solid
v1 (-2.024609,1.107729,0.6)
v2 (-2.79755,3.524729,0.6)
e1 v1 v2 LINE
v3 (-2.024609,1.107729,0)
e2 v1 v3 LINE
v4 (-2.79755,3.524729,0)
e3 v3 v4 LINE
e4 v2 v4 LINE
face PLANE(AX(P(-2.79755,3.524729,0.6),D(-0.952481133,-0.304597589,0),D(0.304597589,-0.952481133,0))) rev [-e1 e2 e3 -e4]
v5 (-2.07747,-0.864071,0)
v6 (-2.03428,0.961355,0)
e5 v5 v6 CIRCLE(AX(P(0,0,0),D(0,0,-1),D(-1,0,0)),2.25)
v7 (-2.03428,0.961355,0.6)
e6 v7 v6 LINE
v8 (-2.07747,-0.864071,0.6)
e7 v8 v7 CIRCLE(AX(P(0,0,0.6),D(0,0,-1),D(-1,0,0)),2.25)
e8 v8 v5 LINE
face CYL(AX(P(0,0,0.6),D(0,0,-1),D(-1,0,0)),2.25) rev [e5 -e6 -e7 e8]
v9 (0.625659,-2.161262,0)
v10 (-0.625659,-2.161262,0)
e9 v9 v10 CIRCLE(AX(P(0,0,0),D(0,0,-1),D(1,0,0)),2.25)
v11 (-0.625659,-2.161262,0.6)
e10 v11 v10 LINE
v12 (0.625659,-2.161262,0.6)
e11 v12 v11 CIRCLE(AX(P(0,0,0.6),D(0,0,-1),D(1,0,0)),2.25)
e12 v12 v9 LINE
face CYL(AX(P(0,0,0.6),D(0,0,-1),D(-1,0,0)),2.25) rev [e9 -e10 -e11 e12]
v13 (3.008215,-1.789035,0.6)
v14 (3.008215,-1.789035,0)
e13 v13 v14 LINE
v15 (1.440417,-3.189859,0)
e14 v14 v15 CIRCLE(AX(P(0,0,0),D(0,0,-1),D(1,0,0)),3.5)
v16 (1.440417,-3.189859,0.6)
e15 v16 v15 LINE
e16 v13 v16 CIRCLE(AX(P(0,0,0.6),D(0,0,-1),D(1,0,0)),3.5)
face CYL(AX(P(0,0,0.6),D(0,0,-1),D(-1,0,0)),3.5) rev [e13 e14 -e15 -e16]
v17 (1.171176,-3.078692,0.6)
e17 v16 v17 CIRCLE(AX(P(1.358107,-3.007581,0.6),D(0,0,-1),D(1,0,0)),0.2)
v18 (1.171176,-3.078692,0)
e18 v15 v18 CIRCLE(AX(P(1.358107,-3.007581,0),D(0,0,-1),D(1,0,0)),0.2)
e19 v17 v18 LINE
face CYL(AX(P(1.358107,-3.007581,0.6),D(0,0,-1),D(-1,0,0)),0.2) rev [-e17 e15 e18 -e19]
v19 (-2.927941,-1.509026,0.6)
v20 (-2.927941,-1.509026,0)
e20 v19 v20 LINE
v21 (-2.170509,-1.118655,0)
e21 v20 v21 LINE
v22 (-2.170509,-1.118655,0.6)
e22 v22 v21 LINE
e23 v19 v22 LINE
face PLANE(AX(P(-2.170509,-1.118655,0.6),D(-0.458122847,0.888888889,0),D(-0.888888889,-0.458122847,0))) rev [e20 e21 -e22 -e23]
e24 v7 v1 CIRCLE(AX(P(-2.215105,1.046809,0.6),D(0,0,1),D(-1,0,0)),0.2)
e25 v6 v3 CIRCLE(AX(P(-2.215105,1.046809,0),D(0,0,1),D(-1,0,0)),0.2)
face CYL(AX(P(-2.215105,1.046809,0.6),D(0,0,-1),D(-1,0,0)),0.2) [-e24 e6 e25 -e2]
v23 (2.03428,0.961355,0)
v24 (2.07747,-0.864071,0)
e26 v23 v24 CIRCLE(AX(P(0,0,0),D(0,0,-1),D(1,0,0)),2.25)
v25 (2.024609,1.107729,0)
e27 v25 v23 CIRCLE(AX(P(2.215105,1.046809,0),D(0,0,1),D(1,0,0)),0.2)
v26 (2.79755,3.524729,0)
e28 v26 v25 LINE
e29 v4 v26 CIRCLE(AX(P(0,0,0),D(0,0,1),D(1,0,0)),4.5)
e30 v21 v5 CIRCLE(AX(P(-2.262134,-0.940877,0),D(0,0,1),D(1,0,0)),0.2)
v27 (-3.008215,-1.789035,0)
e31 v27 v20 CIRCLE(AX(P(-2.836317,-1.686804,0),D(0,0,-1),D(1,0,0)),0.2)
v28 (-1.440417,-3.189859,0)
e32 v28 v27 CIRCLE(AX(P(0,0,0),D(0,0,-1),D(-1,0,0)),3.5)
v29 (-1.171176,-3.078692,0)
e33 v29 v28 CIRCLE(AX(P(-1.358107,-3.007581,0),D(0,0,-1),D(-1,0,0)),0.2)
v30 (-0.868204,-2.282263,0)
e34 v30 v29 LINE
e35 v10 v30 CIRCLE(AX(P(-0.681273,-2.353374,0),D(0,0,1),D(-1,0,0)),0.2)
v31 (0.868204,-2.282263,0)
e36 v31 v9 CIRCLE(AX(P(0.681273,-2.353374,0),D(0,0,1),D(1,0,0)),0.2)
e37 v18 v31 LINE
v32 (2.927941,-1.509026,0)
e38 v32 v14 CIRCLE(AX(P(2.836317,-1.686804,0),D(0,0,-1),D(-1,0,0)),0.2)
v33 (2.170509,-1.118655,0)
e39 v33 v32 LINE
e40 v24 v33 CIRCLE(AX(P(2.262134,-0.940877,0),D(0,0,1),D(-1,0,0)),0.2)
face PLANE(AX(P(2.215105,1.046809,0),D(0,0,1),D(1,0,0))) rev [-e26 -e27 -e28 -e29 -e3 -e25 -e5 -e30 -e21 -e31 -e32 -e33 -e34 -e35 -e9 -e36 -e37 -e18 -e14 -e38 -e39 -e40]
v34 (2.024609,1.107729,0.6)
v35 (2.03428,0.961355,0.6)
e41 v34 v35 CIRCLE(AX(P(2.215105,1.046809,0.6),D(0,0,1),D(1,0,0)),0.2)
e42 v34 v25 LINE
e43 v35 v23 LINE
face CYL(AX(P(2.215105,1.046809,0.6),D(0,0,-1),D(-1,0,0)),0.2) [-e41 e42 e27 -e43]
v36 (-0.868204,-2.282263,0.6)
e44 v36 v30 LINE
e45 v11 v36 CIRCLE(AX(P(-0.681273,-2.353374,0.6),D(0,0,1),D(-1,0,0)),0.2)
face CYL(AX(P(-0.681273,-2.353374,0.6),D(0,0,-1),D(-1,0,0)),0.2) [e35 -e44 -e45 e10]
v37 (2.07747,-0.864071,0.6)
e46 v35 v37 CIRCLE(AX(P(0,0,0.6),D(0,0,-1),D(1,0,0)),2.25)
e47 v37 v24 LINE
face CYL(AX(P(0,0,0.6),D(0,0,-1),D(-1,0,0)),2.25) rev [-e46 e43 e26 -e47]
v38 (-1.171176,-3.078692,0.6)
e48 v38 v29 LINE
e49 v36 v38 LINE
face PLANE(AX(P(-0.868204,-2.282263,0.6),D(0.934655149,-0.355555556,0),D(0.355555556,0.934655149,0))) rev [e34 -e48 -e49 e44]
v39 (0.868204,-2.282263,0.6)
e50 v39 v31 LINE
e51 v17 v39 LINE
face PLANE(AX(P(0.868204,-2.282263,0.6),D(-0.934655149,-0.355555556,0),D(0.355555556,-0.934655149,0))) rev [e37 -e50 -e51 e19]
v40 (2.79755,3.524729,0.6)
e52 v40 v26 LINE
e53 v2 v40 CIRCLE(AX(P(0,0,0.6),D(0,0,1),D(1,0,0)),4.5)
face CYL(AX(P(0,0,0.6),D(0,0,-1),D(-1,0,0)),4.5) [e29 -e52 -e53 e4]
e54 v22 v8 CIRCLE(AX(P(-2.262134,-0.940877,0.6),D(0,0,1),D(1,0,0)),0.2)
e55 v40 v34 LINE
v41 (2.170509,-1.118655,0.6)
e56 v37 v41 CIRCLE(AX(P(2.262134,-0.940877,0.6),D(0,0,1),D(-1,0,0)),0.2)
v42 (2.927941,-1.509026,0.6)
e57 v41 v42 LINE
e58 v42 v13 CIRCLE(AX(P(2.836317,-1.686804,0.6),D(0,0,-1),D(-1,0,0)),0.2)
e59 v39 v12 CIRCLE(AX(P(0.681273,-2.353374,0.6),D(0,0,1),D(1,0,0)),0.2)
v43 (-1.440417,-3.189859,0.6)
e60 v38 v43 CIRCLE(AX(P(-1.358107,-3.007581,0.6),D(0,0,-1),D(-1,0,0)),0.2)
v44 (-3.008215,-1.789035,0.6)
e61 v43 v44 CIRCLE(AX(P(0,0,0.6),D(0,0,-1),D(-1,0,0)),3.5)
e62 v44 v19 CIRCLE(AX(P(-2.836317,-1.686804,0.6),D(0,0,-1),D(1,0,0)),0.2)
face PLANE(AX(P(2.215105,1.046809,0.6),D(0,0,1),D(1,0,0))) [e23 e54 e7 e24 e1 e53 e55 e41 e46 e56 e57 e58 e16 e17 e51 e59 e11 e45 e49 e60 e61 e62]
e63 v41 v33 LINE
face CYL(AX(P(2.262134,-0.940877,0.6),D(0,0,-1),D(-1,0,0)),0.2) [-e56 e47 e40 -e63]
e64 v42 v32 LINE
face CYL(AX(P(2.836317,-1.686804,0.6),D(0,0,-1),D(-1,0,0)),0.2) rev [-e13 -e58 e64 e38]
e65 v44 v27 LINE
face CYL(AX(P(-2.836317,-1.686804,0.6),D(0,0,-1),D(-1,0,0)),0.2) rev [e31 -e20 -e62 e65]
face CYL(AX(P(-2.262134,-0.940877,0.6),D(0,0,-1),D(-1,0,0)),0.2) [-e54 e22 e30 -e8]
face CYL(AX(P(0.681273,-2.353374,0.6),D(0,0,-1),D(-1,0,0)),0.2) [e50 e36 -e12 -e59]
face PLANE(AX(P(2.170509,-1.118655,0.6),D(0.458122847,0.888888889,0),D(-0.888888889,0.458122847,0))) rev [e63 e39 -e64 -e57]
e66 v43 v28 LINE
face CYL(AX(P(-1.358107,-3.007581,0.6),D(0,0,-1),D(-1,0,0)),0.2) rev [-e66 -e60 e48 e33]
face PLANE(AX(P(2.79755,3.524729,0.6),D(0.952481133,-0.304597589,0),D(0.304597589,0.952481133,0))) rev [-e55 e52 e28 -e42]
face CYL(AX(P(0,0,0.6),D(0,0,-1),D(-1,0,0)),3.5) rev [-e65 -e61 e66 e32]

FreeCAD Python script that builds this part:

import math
import FreeCAD as App
import Part
import Sketcher

V = App.Vector
Q = App.Units.Quantity

doc = App.newDocument("Part")
params = doc.addObject("Spreadsheet::Sheet", "Params")
for row, (alias, value) in enumerate([
    ("sketch1_radius", "0.2 mm"),
    ("sketch1_radius2", "3.5 mm"),
    ("sketch1_radius3", "4.5 mm"),
    ("sketch1_radius4", "2.25 mm"),
    ("pad1_length", "0.6 mm"),
], start=1):
    params.set(f"A{row}", alias)
    params.set(f"B{row}", "=" + value)
    params.setAlias(f"B{row}", alias)

body = doc.addObject("PartDesign::Body", "Body")

# Sketch on XY plane
sketch1 = body.newObject("Sketcher::SketchObject", "Sketch")
sketch1.AttachmentSupport = (doc.getObject("XY_Plane"), [""])
sketch1.MapMode = "FlatFace"
sketch1.addGeometry(Part.LineSegment(V(2.79755, 3.524729, 0), V(2.024609, 1.107729, 0)), False)
sketch1.addGeometry(Part.ArcOfCircle(Part.Circle(V(2.215105, 1.046809, 0), V(0, 0, 1), 0.2), math.radians(162.266045), math.radians(205.294371)), False)
sketch1.addGeometry(Part.ArcOfCircle(Part.Circle(V(0, 0, 0), V(0, 0, 1), 2.25), math.radians(-22.583628), math.radians(25.294371)), False)
sketch1.addGeometry(Part.ArcOfCircle(Part.Circle(V(2.262134, -0.940877, 0), V(0, 0, 1), 0.2), math.radians(157.416372), math.radians(242.733956)), False)
sketch1.addGeometry(Part.LineSegment(V(2.170509, -1.118655, 0), V(2.927941, -1.509026, 0)), False)
sketch1.addGeometry(Part.ArcOfCircle(Part.Circle(V(2.836317, -1.686804, 0), V(0, 0, 1), 0.2), math.radians(-30.740646), math.radians(62.733956)), False)
sketch1.addGeometry(Part.ArcOfCircle(Part.Circle(V(0, 0, 0), V(0, 0, 1), 3.5), math.radians(-65.697902), math.radians(-30.740645)), False)
sketch1.addGeometry(Part.ArcOfCircle(Part.Circle(V(1.358107, -3.007581, 0), V(0, 0, 1), 0.2), math.radians(-159.172503), math.radians(-65.697903)), False)
sketch1.addGeometry(Part.LineSegment(V(1.171176, -3.078692, 0), V(0.868204, -2.282263, 0)), False)
sketch1.addGeometry(Part.ArcOfCircle(Part.Circle(V(0.681273, -2.353374, 0), V(0, 0, 1), 0.2), math.radians(20.827497), math.radians(106.145079)), False)
sketch1.addGeometry(Part.ArcOfCircle(Part.Circle(V(0, 0, 0), V(0, 0, 1), 2.25), math.radians(-106.14508), math.radians(-73.85492)), False)
sketch1.addGeometry(Part.ArcOfCircle(Part.Circle(V(-0.681273, -2.353374, 0), V(0, 0, 1), 0.2), math.radians(73.854921), math.radians(159.172503)), False)
sketch1.addGeometry(Part.LineSegment(V(-0.868204, -2.282263, 0), V(-1.171176, -3.078692, 0)), False)
sketch1.addGeometry(Part.ArcOfCircle(Part.Circle(V(-1.358107, -3.007581, 0), V(0, 0, 1), 0.2), math.radians(-114.302097), math.radians(-20.827497)), False)
sketch1.addGeometry(Part.ArcOfCircle(Part.Circle(V(0, 0, 0), V(0, 0, 1), 3.5), math.radians(-149.259355), math.radians(-114.302098)), False)
sketch1.addGeometry(Part.ArcOfCircle(Part.Circle(V(-2.836317, -1.686804, 0), V(0, 0, 1), 0.2), math.radians(117.266044), math.radians(210.740646)), False)
sketch1.addGeometry(Part.LineSegment(V(-2.927941, -1.509026, 0), V(-2.170509, -1.118655, 0)), False)
sketch1.addGeometry(Part.ArcOfCircle(Part.Circle(V(-2.262134, -0.940877, 0), V(0, 0, 1), 0.2), math.radians(-62.733956), math.radians(22.583628)), False)
sketch1.addGeometry(Part.ArcOfCircle(Part.Circle(V(0, 0, 0), V(0, 0, 1), 2.25), math.radians(154.705629), math.radians(202.583628)), False)
sketch1.addGeometry(Part.ArcOfCircle(Part.Circle(V(-2.215105, 1.046809, 0), V(0, 0, 1), 0.2), math.radians(-25.294371), math.radians(17.733955)), False)
sketch1.addGeometry(Part.LineSegment(V(-2.024609, 1.107729, 0), V(-2.79755, 3.524729, 0)), False)
sketch1.addGeometry(Part.ArcOfCircle(Part.Circle(V(0, 0, 0), V(0, 0, 1), 4.5), math.radians(128.438767), math.radians(411.561233)), False)
sketch1.addConstraint(Sketcher.Constraint("Tangent", 0, 2, 1, 1))
sketch1.addConstraint(Sketcher.Constraint("Tangent", 1, 2, 2, 2))
sketch1.addConstraint(Sketcher.Constraint("Tangent", 2, 1, 3, 1))
sketch1.addConstraint(Sketcher.Constraint("Tangent", 3, 2, 4, 1))
sketch1.addConstraint(Sketcher.Constraint("Tangent", 4, 2, 5, 2))
sketch1.addConstraint(Sketcher.Constraint("Tangent", 5, 1, 6, 2))
sketch1.addConstraint(Sketcher.Constraint("Tangent", 6, 1, 7, 2))
sketch1.addConstraint(Sketcher.Constraint("Tangent", 7, 1, 8, 1))
sketch1.addConstraint(Sketcher.Constraint("Tangent", 8, 2, 9, 1))
sketch1.addConstraint(Sketcher.Constraint("Tangent", 9, 2, 10, 2))
sketch1.addConstraint(Sketcher.Constraint("Tangent", 10, 1, 11, 1))
sketch1.addConstraint(Sketcher.Constraint("Tangent", 11, 2, 12, 1))
sketch1.addConstraint(Sketcher.Constraint("Tangent", 12, 2, 13, 2))
sketch1.addConstraint(Sketcher.Constraint("Tangent", 13, 1, 14, 2))
sketch1.addConstraint(Sketcher.Constraint("Tangent", 14, 1, 15, 2))
sketch1.addConstraint(Sketcher.Constraint("Tangent", 15, 1, 16, 1))
sketch1.addConstraint(Sketcher.Constraint("Tangent", 16, 2, 17, 1))
sketch1.addConstraint(Sketcher.Constraint("Tangent", 17, 2, 18, 2))
sketch1.addConstraint(Sketcher.Constraint("Tangent", 18, 1, 19, 1))
sketch1.addConstraint(Sketcher.Constraint("Tangent", 19, 2, 20, 1))
sketch1.addConstraint(Sketcher.Constraint("Coincident", 20, 2, 21, 1))
sketch1.addConstraint(Sketcher.Constraint("Coincident", 21, 2, 0, 1))
sketch1.addConstraint(Sketcher.Constraint("Coincident", 2, 3, -1, 1))
sketch1.addConstraint(Sketcher.Constraint("Coincident", 6, 3, -1, 1))
sketch1.addConstraint(Sketcher.Constraint("Coincident", 10, 3, -1, 1))
sketch1.addConstraint(Sketcher.Constraint("Coincident", 14, 3, -1, 1))
sketch1.addConstraint(Sketcher.Constraint("Coincident", 18, 3, -1, 1))
sketch1.addConstraint(Sketcher.Constraint("Coincident", 21, 3, -1, 1))
sketch1.addConstraint(Sketcher.Constraint("Equal", 1, 3))
sketch1.addConstraint(Sketcher.Constraint("Equal", 3, 5))
sketch1.addConstraint(Sketcher.Constraint("Equal", 5, 7))
sketch1.addConstraint(Sketcher.Constraint("Equal", 7, 9))
sketch1.addConstraint(Sketcher.Constraint("Equal", 2, 10))
sketch1.addConstraint(Sketcher.Constraint("Equal", 9, 11))
sketch1.addConstraint(Sketcher.Constraint("Equal", 11, 13))
sketch1.addConstraint(Sketcher.Constraint("Equal", 6, 14))
sketch1.addConstraint(Sketcher.Constraint("Equal", 13, 15))
sketch1.addConstraint(Sketcher.Constraint("Equal", 15, 17))
sketch1.addConstraint(Sketcher.Constraint("Equal", 10, 18))
sketch1.addConstraint(Sketcher.Constraint("Equal", 17, 19))
sketch1.addConstraint(Sketcher.Constraint("Symmetric", 8, 2, 11, 2, -2))
sketch1.addConstraint(Sketcher.Constraint("Symmetric", 4, 2, 15, 1, -2))
sketch1.addConstraint(Sketcher.Constraint("Symmetric", 0, 2, 19, 2, -2))
sketch1.addConstraint(Sketcher.Constraint("Equal", 4, 8))
sketch1.addConstraint(Sketcher.Constraint("Radius", 1, Q("0.2 mm")))
sketch1.addConstraint(Sketcher.Constraint("Radius", 6, Q("3.5 mm")))
sketch1.addConstraint(Sketcher.Constraint("Radius", 21, Q("4.5 mm")))
sketch1.addConstraint(Sketcher.Constraint("Radius", 2, Q("2.25 mm")))
sketch1.addConstraint(Sketcher.Constraint("DistanceY", 8, 2, 9, 2, Q("0.121001 mm")))
sketch1.addConstraint(Sketcher.Constraint("DistanceY", 19, 2, 20, 2, Q("2.417 mm")))
sketch1.addConstraint(Sketcher.Constraint("DistanceY", 2, 1, 0, 2, Q("1.9718 mm")))
sketch1.addConstraint(Sketcher.Constraint("DistanceX", 7, 3, 3, 2, Q("0.812402 mm")))
sketch1.addConstraint(Sketcher.Constraint("DistanceX", 6, 1, 5, 3, Q("1.3959 mm")))
sketch1.setExpression("Constraints[44]", "Params.sketch1_radius")
sketch1.setExpression("Constraints[45]", "Params.sketch1_radius2")
sketch1.setExpression("Constraints[46]", "Params.sketch1_radius3")
sketch1.setExpression("Constraints[47]", "Params.sketch1_radius4")
pad1 = body.newObject("PartDesign::Pad", "Pad")
pad1.Profile = sketch1
pad1.setExpression("Length", "Params.pad1_length")

doc.recompute()
